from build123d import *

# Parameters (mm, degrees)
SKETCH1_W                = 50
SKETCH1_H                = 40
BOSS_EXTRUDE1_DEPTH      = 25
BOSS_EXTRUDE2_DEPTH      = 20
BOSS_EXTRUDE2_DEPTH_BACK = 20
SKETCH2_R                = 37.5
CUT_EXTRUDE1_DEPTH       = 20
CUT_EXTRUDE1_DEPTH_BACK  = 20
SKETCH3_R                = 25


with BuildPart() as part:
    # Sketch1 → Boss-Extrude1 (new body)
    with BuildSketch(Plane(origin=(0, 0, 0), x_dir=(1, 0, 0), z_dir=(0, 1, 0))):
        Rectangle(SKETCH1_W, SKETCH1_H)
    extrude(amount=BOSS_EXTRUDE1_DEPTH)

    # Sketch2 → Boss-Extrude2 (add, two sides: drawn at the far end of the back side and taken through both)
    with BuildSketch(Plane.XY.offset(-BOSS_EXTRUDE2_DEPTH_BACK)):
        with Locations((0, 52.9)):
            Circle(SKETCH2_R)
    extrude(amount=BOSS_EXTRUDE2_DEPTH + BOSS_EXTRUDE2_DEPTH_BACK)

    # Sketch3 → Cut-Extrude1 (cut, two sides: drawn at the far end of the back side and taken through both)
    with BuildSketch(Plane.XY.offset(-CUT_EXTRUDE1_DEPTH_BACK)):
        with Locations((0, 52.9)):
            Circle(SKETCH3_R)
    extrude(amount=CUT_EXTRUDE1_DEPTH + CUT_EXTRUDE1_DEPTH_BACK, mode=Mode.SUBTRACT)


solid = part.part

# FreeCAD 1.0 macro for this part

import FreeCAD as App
import Part
import Sketcher
from FreeCAD import Vector
Q = App.Units.Quantity

doc = App.newDocument("Part")
body = doc.addObject("PartDesign::Body", "Body")

sketch1 = doc.addObject("Sketcher::SketchObject", "Sketch")
body.addObject(sketch1)
sketch1.AttachmentSupport = (doc.XZ_Plane, [""])
sketch1.MapMode = "FlatFace"
sketch1.addGeometry([
    Part.LineSegment(Vector(-25, -20, 0), Vector(-25, 20, 0)),
    Part.LineSegment(Vector(-25, 20, 0), Vector(25, 20, 0)),
    Part.LineSegment(Vector(25, 20, 0), Vector(25, -20, 0)),
    Part.LineSegment(Vector(25, -20, 0), Vector(-25, -20, 0)),
], False)
sketch1.addConstraint([
    Sketcher.Constraint("Coincident", 0, 2, 1, 1),
    Sketcher.Constraint("Coincident", 1, 2, 2, 1),
    Sketcher.Constraint("Coincident", 2, 2, 3, 1),
    Sketcher.Constraint("Coincident", 3, 2, 0, 1),
    Sketcher.Constraint("Vertical", 0),
    Sketcher.Constraint("Horizontal", 1),
    Sketcher.Constraint("Vertical", 2),
    Sketcher.Constraint("Horizontal", 3),
    Sketcher.Constraint("Symmetric", 0, 2, 2, 2, -1, 1),
    Sketcher.Constraint("DistanceX", 1, 1, 1, 2, Q("50 mm")),
    Sketcher.Constraint("DistanceY", 0, 1, 0, 2, Q("40 mm")),
])
pad1 = doc.addObject("PartDesign::Pad", "Pad")
body.addObject(pad1)
pad1.Profile = sketch1
pad1.Length = 25
pad1.Reversed = True

sketch2 = doc.addObject("Sketcher::SketchObject", "Sketch001")
body.addObject(sketch2)
sketch2.AttachmentSupport = (doc.XY_Plane, [""])
sketch2.MapMode = "FlatFace"
sketch2.addGeometry(Part.Circle(Vector(0, 53, 0), Vector(0, 0, 1), 38), False)
sketch2.addConstraint([
    Sketcher.Constraint("PointOnObject", 0, 3, -2),
    Sketcher.Constraint("Diameter", 0, Q("75 mm")),
    Sketcher.Constraint("DistanceY", -1, 1, 0, 3, Q("52.9 mm")),
])
pad2 = doc.addObject("PartDesign::Pad", "Pad001")
body.addObject(pad2)
pad2.Profile = sketch2
pad2.Type = "TwoLengths"
pad2.Length = 20
pad2.Length2 = 20

sketch3 = doc.addObject("Sketcher::SketchObject", "Sketch002")
body.addObject(sketch3)
sketch3.AttachmentSupport = (doc.XY_Plane, [""])
sketch3.MapMode = "FlatFace"
sketch3.addGeometry(Part.Circle(Vector(0, 53, 0), Vector(0, 0, 1), 25), False)
sketch3.addConstraint([
    Sketcher.Constraint("PointOnObject", 0, 3, -2),
    Sketcher.Constraint("Diameter", 0, Q("50 mm")),
    Sketcher.Constraint("DistanceY", -1, 1, 0, 3, Q("52.9 mm")),
])
pocket1 = doc.addObject("PartDesign::Pocket", "Pocket")
body.addObject(pocket1)
pocket1.Profile = sketch3
pocket1.Type = "ThroughAll"
pocket1.Midplane = True

doc.recompute()
